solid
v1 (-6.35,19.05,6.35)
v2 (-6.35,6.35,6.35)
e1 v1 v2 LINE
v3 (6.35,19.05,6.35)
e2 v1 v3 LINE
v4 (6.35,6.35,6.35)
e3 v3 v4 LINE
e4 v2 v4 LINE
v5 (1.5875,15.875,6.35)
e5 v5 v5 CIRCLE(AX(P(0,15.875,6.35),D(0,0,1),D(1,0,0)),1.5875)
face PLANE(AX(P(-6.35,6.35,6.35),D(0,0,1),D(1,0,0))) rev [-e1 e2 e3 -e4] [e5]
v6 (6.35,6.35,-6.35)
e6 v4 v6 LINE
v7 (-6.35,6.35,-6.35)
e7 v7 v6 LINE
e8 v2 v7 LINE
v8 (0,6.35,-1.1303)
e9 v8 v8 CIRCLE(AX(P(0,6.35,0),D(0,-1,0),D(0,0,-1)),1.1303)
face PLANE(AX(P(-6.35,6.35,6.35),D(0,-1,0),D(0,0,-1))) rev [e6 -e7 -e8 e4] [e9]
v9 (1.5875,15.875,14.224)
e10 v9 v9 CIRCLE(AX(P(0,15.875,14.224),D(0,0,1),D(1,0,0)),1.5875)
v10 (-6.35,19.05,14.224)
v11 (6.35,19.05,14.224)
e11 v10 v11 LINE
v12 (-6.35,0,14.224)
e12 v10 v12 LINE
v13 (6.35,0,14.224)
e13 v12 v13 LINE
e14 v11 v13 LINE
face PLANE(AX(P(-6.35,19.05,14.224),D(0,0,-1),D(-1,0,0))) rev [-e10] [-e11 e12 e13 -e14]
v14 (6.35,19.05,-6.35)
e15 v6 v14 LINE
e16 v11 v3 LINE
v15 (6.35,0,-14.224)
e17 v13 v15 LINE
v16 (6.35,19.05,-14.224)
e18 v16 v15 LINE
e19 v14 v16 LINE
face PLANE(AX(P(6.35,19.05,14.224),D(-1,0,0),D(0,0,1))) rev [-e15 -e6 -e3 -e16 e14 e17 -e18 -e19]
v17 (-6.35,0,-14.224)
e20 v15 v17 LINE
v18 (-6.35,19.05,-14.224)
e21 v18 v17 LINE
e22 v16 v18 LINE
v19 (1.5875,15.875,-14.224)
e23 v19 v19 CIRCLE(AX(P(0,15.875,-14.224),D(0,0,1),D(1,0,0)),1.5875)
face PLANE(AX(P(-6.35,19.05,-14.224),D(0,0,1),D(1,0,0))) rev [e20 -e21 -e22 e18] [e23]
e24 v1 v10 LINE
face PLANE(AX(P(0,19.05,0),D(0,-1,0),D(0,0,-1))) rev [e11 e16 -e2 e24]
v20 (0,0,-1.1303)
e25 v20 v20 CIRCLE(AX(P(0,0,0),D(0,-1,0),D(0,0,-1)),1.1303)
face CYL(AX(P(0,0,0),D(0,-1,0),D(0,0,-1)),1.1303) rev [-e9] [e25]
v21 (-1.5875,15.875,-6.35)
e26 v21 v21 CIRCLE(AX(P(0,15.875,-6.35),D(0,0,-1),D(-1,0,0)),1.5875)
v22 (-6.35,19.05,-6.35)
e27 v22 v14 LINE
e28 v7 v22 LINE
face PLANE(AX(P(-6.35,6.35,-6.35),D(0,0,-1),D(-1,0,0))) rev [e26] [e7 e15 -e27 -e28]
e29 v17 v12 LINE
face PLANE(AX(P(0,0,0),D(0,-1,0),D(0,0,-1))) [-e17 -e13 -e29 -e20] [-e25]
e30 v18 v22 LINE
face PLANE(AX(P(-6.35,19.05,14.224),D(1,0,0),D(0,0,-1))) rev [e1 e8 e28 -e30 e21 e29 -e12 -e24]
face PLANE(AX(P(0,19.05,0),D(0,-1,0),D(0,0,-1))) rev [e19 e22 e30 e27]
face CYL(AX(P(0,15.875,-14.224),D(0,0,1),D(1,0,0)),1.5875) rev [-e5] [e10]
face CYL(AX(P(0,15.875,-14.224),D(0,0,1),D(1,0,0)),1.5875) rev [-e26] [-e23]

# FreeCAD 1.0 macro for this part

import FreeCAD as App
import Part
import Sketcher

V = App.Vector
Q = App.Units.Quantity

doc = App.newDocument("Part")
body = doc.addObject("PartDesign::Body", "Body")

# Sketch on XZ plane
sketch1 = body.newObject("Sketcher::SketchObject", "Sketch")
sketch1.AttachmentSupport = (doc.getObject("XZ_Plane"), [""])
sketch1.MapMode = "FlatFace"
sketch1.addGeometry([
    Part.LineSegment(V(-6, -14, 0), V(-6, 14, 0)),
    Part.LineSegment(V(-6, 14, 0), V(6, 14, 0)),
    Part.LineSegment(V(6, 14, 0), V(6, -14, 0)),
    Part.LineSegment(V(6, -14, 0), V(-6, -14, 0)),
], False)
sketch1.addConstraint([
    Sketcher.Constraint("Coincident", 0, 2, 1, 1),
    Sketcher.Constraint("Coincident", 1, 2, 2, 1),
    Sketcher.Constraint("Coincident", 2, 2, 3, 1),
    Sketcher.Constraint("Coincident", 3, 2, 0, 1),
    Sketcher.Constraint("Vertical", 0),
    Sketcher.Constraint("Horizontal", 1),
    Sketcher.Constraint("Vertical", 2),
    Sketcher.Constraint("Horizontal", 3),
    Sketcher.Constraint("Symmetric", 0, 2, 2, 2, -1, 1),
    Sketcher.Constraint("DistanceX", 1, 1, 1, 2, Q("0.5 in")),
    Sketcher.Constraint("DistanceY", 0, 1, 0, 2, Q("1.12 in")),
])
pad1 = body.newObject("PartDesign::Pad", "Pad")
pad1.Profile = sketch1
pad1.Length = Q("0.75 in")
pad1.Reversed = True

# Sketch on YZ plane
sketch2 = body.newObject("Sketcher::SketchObject", "Sketch001")
sketch2.AttachmentSupport = (doc.getObject("YZ_Plane"), [""])
sketch2.MapMode = "FlatFace"
sketch2.AttachmentOffset = App.Placement(V(0, 0, 0.25 * 25.4), App.Rotation())
sketch2.addGeometry([
    Part.LineSegment(V(19, 6, 0), V(6, 6, 0)),
    Part.LineSegment(V(6, 6, 0), V(6, -6, 0)),
    Part.LineSegment(V(6, -6, 0), V(19, -6, 0)),
    Part.LineSegment(V(19, -6, 0), V(19, 6, 0)),
], False)
sketch2.addConstraint([
    Sketcher.Constraint("Coincident", 0, 2, 1, 1),
    Sketcher.Constraint("Coincident", 1, 2, 2, 1),
    Sketcher.Constraint("Coincident", 2, 2, 3, 1),
    Sketcher.Constraint("Coincident", 3, 2, 0, 1),
    Sketcher.Constraint("Horizontal", 0),
    Sketcher.Constraint("Vertical", 1),
    Sketcher.Constraint("Horizontal", 2),
    Sketcher.Constraint("Vertical", 3),
    Sketcher.Constraint("Equal", 2, 1),
    Sketcher.Constraint("DistanceX", 0, 2, 0, 1, Q("0.5 in")),
    Sketcher.Constraint("DistanceX", -1, 1, 0, 2, Q("0.25 in")),
    Sketcher.Constraint("DistanceY", -1, 1, 0, 2, Q("0.25 in")),
])
pocket1 = body.newObject("PartDesign::Pocket", "Pocket")
pocket1.Profile = sketch2
pocket1.Type = "ThroughAll"

# Sketch on XY plane
sketch3 = body.newObject("Sketcher::SketchObject", "Sketch002")
sketch3.AttachmentSupport = (doc.getObject("XY_Plane"), [""])
sketch3.MapMode = "FlatFace"
sketch3.AttachmentOffset = App.Placement(V(0, 0, 0.56 * 25.4), App.Rotation())
sketch3.addGeometry(Part.Circle(V(0, 15.9, 0), V(0, 0, 1), 1.6), False)
sketch3.addConstraint([
    Sketcher.Constraint("PointOnObject", 0, 3, -2),
    Sketcher.Constraint("Diameter", 0, Q("0.125 in")),
    Sketcher.Constraint("DistanceY", -1, 1, 0, 3, Q("0.625 in")),
])
pocket2 = body.newObject("PartDesign::Pocket", "Pocket001")
pocket2.Profile = sketch3
pocket2.Type = "ThroughAll"

# Sketch on XZ plane
sketch4 = body.newObject("Sketcher::SketchObject", "Sketch003")
sketch4.AttachmentSupport = (doc.getObject("XZ_Plane"), [""])
sketch4.MapMode = "FlatFace"
sketch4.addGeometry(Part.Circle(V(0, 0, 0), V(0, 0, 1), 1.1), False)
sketch4.addConstraint([
    Sketcher.Constraint("Coincident", 0, 3, -1, 1),
    Sketcher.Constraint("Diameter", 0, Q("0.089 in")),
])
doc.recompute()
hole = body.newObject("PartDesign::Hole", "Hole")
hole.Profile = sketch4
hole.ThreadType = "None"
hole.Diameter = Q("0.089 in")
hole.DepthType = "ThroughAll"

doc.recompute()
